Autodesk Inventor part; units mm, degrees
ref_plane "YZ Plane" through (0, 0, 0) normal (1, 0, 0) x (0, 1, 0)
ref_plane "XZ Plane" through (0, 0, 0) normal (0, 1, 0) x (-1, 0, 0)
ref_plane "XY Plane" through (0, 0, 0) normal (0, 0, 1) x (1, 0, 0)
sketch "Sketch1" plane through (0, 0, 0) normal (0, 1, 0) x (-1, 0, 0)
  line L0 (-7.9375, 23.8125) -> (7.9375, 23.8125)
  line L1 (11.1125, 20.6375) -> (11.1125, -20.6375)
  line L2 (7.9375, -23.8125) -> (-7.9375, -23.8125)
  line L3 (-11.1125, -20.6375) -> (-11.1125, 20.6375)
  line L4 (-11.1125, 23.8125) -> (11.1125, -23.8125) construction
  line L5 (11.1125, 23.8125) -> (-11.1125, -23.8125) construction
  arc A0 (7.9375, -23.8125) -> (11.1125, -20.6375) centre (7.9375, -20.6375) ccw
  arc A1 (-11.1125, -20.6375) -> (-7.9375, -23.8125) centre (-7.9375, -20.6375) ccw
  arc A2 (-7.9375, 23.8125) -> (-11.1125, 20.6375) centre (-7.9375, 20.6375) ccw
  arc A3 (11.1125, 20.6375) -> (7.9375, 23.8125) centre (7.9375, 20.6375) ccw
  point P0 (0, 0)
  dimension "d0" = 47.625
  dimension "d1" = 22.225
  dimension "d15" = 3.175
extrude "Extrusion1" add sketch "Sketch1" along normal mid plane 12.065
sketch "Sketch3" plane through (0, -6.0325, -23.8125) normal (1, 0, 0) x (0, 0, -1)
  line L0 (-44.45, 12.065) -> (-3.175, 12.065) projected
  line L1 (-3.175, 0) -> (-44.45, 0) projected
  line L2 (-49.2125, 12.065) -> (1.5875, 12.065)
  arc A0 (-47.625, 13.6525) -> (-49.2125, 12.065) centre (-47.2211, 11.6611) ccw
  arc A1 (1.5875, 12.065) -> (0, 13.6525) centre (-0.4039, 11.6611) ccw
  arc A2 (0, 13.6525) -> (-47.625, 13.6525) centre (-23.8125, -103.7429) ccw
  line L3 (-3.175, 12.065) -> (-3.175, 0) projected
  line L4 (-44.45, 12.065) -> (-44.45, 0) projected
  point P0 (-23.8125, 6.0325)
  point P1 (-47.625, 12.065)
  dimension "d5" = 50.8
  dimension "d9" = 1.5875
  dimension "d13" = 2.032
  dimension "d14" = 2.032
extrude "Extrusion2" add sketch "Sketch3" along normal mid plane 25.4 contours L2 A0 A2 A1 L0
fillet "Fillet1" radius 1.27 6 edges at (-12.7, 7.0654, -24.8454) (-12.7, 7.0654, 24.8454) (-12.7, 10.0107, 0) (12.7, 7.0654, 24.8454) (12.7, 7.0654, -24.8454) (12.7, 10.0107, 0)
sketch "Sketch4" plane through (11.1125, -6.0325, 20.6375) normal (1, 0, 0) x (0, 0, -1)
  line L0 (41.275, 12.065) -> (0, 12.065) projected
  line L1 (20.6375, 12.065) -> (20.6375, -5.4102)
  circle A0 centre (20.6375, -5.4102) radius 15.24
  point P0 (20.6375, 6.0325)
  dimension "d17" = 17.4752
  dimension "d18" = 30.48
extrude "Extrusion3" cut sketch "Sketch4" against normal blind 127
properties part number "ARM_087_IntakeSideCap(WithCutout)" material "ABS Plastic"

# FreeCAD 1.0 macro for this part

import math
import FreeCAD as App
import Part
import Sketcher
Q = App.Units.Quantity


def edges_at(feature, points):
    """Names of the edges that pass closest to the given points."""
    edges = feature.Shape.Edges
    near = lambda p: min(range(len(edges)), key=lambda i: edges[i].distToShape(Part.Vertex(*p))[0])
    return sorted({f"Edge{near(p) + 1}" for p in points})

doc = App.newDocument("Part")
body = doc.addObject("PartDesign::Body", "Body")

# Sketch on XZ plane
sketch1 = body.newObject("Sketcher::SketchObject", "Sketch")
sketch1.AttachmentSupport = (doc.getObject("XZ_Plane"), [""])
sketch1.MapMode = "FlatFace"
sketch1.addGeometry([
    Part.LineSegment(App.Vector(-7.9, 23.8, 0), App.Vector(7.9, 23.8, 0)),  # 0
    Part.ArcOfCircle(Part.Circle(App.Vector(7.9, 20.6, 0), App.Vector(0, 0, 1), 3.2), math.radians(0), math.radians(90)),  # 1
    Part.LineSegment(App.Vector(11.1, 20.6, 0), App.Vector(11.1, -20.6, 0)),  # 2
    Part.ArcOfCircle(Part.Circle(App.Vector(7.9, -20.6, 0), App.Vector(0, 0, 1), 3.2), math.radians(-90), math.radians(0)),  # 3
    Part.LineSegment(App.Vector(7.9, -23.8, 0), App.Vector(-7.9, -23.8, 0)),  # 4
    Part.ArcOfCircle(Part.Circle(App.Vector(-7.9, -20.6, 0), App.Vector(0, 0, 1), 3.2), math.radians(180), math.radians(270)),  # 5
    Part.LineSegment(App.Vector(-11.1, -20.6, 0), App.Vector(-11.1, 20.6, 0)),  # 6
    Part.ArcOfCircle(Part.Circle(App.Vector(-7.9, 20.6, 0), App.Vector(0, 0, 1), 3.2), math.radians(90), math.radians(180)),  # 7
], False)
sketch1.addConstraint([
    Sketcher.Constraint("Tangent", 0, 2, 1, 2),
    Sketcher.Constraint("Tangent", 1, 1, 2, 1),
    Sketcher.Constraint("Tangent", 2, 2, 3, 2),
    Sketcher.Constraint("Tangent", 3, 1, 4, 1),
    Sketcher.Constraint("Tangent", 4, 2, 5, 2),
    Sketcher.Constraint("Tangent", 5, 1, 6, 1),
    Sketcher.Constraint("Tangent", 6, 2, 7, 2),
    Sketcher.Constraint("Tangent", 7, 1, 0, 1),
    Sketcher.Constraint("Horizontal", 0),
    Sketcher.Constraint("Vertical", 2),
    Sketcher.Constraint("Horizontal", 4),
    Sketcher.Constraint("Vertical", 6),
    Sketcher.Constraint("Equal", 1, 3),
    Sketcher.Constraint("Equal", 3, 5),
    Sketcher.Constraint("Equal", 5, 7),
    Sketcher.Constraint("Symmetric", 1, 3, 5, 3, -1, 1),
    Sketcher.Constraint("Radius", 1, Q("0.125 in")),
    Sketcher.Constraint("DistanceX", 5, 1, 2, 2, Q("0.875 in")),
    Sketcher.Constraint("DistanceY", 2, 2, 2, 1, Q("1.625 in")),
])
pad1 = body.newObject("PartDesign::Pad", "Pad")
pad1.Profile = sketch1
pad1.Length = Q("0.475 in")
pad1.Midplane = True

# Sketch on YZ plane
sketch2 = body.newObject("Sketcher::SketchObject", "Sketch001")
sketch2.AttachmentSupport = (doc.getObject("YZ_Plane"), [""])
sketch2.MapMode = "FlatFace"
sketch2.addGeometry([
    Part.LineSegment(App.Vector(6, 25.4, 0), App.Vector(6, -25.4, 0)),
    Part.ArcOfCircle(Part.Circle(App.Vector(5.6, -23.4, 0), App.Vector(0, 0, 1), 2), math.radians(-79), math.radians(-11)),
    Part.ArcOfCircle(Part.Circle(App.Vector(-109.8, 0, 0), App.Vector(0, 0, 1), 119.8), math.radians(-11), math.radians(11)),
    Part.ArcOfCircle(Part.Circle(App.Vector(5.6, 23.4, 0), App.Vector(0, 0, 1), 2), math.radians(11), math.radians(79)),
], False)
sketch2.addConstraint([
    Sketcher.Constraint("Coincident", 0, 2, 1, 1),
    Sketcher.Constraint("Tangent", 1, 2, 2, 1),
    Sketcher.Constraint("Tangent", 2, 2, 3, 1),
    Sketcher.Constraint("Coincident", 3, 2, 0, 1),
    Sketcher.Constraint("Vertical", 0),
    Sketcher.Constraint("Equal", 1, 3),
    Sketcher.Constraint("Symmetric", 1, 3, 3, 3, -1),
    Sketcher.Constraint("DistanceY", 0, 2, 0, 1, Q("2 in")),
    Sketcher.Constraint("Radius", 1, Q("0.08 in")),
    Sketcher.Constraint("Radius", 2, Q("4.716 in")),
    Sketcher.Constraint("DistanceX", 0, 2, 1, 2, Q("0.0625 in")),
    Sketcher.Constraint("DistanceX", -1, 1, 1, 2, Q("0.3 in")),
])
pad2 = body.newObject("PartDesign::Pad", "Pad001")
pad2.Profile = sketch2
pad2.Length = Q("1 in")
pad2.Midplane = True
doc.recompute()

fillet = body.newObject("PartDesign::Fillet", "Fillet")
fillet.Base = (pad2, edges_at(pad2, [
    (-12.7, 7.065, -24.845),
    (-12.7, 7.065, 24.845),
    (-12.7, 10.011, 0),
    (12.7, 7.065, 24.845),
    (12.7, 7.065, -24.845),
    (12.7, 10.011, 0),
]))
fillet.Radius = Q("0.05 in")

# Sketch on YZ plane
sketch3 = body.newObject("Sketcher::SketchObject", "Sketch002")
sketch3.AttachmentSupport = (doc.getObject("YZ_Plane"), [""])
sketch3.MapMode = "FlatFace"
sketch3.AttachmentOffset = App.Placement(App.Vector(0, 0, 0.4375 * 25.4), App.Rotation())
sketch3.addGeometry(Part.Circle(App.Vector(-11, 0, 0), App.Vector(0, 0, 1), 15), False)
sketch3.addConstraint([
    Sketcher.Constraint("PointOnObject", 0, 3, -1),
    Sketcher.Constraint("Diameter", 0, Q("1.2 in")),
    Sketcher.Constraint("DistanceX", 0, 3, -1, 1, Q("0.4505 in")),
])
pocket1 = body.newObject("PartDesign::Pocket", "Pocket")
pocket1.Profile = sketch3
pocket1.Length = Q("5 in")

doc.recompute()
